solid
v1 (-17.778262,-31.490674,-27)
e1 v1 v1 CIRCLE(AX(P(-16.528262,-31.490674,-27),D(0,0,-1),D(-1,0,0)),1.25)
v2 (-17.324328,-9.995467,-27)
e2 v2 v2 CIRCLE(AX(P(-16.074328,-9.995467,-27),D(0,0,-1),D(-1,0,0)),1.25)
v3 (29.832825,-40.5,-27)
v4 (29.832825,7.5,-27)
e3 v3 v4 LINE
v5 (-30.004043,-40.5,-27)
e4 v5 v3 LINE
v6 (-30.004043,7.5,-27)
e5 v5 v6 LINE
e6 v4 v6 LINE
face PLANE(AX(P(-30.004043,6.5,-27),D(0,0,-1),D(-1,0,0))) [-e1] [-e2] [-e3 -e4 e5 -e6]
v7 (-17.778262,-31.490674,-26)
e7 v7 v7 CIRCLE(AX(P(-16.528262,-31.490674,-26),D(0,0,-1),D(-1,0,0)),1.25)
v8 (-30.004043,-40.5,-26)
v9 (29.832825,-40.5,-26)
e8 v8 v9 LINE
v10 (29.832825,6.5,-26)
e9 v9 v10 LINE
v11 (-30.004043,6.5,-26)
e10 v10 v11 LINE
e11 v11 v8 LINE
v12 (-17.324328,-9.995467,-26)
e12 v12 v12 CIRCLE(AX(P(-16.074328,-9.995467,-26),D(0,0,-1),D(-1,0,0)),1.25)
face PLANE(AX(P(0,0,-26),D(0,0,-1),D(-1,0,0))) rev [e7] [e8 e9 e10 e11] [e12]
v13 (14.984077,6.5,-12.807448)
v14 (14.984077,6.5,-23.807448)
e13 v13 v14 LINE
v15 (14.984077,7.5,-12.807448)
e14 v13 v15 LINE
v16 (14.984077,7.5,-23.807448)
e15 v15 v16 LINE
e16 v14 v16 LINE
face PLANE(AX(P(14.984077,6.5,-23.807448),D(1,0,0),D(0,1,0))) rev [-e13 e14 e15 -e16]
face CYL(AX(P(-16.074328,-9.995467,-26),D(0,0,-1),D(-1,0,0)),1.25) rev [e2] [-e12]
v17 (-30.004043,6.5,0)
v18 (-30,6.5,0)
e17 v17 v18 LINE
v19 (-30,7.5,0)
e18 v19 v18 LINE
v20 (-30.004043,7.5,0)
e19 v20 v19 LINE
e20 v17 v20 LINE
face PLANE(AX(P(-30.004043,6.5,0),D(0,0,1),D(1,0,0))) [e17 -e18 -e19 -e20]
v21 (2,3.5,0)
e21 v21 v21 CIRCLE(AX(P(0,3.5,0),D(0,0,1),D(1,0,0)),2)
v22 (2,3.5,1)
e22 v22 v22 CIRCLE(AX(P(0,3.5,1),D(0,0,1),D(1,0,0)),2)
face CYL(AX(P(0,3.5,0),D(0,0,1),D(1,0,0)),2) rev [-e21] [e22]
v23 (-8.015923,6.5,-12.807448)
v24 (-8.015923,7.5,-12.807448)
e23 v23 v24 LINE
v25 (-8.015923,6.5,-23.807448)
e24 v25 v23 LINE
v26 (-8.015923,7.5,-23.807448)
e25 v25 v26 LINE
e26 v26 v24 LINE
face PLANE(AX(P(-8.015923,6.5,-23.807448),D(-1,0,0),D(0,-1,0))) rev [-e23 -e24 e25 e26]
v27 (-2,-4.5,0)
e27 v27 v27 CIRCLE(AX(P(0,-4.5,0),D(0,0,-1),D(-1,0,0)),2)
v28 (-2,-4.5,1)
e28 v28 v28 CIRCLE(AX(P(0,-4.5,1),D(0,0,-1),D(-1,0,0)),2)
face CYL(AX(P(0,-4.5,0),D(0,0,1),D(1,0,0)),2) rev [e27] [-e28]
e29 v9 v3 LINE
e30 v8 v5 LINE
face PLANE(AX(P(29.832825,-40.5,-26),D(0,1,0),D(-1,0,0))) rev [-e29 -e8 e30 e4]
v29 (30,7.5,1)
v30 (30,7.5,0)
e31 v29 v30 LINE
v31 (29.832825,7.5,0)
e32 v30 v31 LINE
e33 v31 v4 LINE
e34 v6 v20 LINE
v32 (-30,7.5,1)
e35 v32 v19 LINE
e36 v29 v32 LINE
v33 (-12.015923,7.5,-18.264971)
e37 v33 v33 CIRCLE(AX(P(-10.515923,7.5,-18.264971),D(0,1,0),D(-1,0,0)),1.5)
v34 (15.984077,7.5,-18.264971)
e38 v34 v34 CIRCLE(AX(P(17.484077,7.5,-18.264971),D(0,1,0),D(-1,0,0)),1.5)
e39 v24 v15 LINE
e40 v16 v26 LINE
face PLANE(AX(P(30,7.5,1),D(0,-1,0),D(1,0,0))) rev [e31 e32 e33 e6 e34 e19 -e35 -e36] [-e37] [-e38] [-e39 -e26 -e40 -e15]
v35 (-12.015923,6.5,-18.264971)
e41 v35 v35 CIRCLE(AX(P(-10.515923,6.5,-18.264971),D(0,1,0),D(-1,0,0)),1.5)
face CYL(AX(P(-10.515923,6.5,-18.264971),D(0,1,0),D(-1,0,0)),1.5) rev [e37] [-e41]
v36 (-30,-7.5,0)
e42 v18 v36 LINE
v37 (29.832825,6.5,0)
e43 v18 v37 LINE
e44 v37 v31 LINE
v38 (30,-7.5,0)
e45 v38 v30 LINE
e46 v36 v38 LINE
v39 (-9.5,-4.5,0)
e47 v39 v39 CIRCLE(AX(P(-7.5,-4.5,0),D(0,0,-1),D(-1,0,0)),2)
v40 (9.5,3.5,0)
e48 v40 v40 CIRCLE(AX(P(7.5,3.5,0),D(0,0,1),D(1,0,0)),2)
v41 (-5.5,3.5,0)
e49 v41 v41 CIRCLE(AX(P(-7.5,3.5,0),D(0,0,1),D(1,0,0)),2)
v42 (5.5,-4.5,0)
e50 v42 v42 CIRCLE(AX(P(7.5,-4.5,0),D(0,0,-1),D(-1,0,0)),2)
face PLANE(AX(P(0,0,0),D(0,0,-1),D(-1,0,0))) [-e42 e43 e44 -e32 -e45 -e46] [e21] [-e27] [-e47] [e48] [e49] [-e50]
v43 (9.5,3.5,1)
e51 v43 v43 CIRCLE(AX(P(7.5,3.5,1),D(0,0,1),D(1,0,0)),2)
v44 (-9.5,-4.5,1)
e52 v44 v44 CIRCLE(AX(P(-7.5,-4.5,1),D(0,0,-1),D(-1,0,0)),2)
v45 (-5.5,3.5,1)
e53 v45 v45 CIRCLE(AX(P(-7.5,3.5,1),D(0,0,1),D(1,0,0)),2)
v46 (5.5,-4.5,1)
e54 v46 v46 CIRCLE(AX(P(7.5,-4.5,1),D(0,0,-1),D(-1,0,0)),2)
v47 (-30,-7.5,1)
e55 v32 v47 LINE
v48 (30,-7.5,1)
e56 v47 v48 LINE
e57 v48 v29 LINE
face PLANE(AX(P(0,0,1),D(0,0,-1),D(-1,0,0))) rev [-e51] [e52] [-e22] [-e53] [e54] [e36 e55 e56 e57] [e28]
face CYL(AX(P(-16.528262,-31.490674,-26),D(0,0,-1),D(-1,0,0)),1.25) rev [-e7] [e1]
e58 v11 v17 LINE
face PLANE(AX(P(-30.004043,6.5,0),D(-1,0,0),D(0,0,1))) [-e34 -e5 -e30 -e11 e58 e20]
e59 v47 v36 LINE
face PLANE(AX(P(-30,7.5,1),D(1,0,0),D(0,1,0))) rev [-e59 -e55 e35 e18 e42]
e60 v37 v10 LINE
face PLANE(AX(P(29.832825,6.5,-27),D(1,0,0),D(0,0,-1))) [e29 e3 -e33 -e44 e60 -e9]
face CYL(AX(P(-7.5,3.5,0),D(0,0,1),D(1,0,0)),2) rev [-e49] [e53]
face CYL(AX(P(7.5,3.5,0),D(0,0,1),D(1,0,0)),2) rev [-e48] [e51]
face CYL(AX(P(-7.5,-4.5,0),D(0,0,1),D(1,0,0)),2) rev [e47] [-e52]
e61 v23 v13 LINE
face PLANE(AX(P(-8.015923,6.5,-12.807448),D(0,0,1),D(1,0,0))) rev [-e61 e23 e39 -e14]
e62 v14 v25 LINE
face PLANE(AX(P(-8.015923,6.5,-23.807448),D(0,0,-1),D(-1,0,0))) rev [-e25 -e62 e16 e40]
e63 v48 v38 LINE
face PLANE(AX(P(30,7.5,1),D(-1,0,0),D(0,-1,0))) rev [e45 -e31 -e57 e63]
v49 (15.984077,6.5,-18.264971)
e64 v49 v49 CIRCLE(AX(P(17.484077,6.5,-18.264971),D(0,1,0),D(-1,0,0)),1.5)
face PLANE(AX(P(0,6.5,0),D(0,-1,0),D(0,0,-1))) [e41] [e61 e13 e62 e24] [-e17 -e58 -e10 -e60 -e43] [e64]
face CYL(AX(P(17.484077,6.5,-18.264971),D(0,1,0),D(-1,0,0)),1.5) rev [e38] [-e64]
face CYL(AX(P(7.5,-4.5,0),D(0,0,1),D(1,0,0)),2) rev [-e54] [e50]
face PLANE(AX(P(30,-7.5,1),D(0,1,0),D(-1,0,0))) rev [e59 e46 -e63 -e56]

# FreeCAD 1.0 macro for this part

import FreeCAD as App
import Part
import Sketcher

V = App.Vector
Q = App.Units.Quantity


def add_polygon(sketch, points):
    """Adds a closed chain of lines whose ends are joined by coincident constraints."""
    first, n = sketch.GeometryCount, len(points)
    for a, b in zip(points, points[1:] + points[:1]):
        sketch.addGeometry(Part.LineSegment(App.Vector(*a, 0), App.Vector(*b, 0)), False)
    for i in range(n):
        sketch.addConstraint(Sketcher.Constraint("Coincident", first + i, 2, first + (i + 1) % n, 1))

doc = App.newDocument("Part")
params = doc.addObject("Spreadsheet::Sheet", "Params")
for row, (alias, value) in enumerate([
    ("sketch1_width", "60 mm"),
    ("sketch1_height", "15 mm"),
    ("pad1_length", "1 mm"),
    ("sketch2_height", "27 mm"),
    ("pad2_length", "1 mm"),
    ("sketch3_height", "47 mm"),
    ("pad3_length", "1 mm"),
    ("sketch4_diameter", "4 mm"),
    ("pocket1_length", "1 mm"),
    ("sketch5_width", "23 mm"),
    ("sketch5_height", "11 mm"),
    ("pocket2_length", "1 mm"),
    ("sketch6_diameter", "3 mm"),
    ("pocket3_length", "1 mm"),
    ("sketch7_diameter", "2.5 mm"),
    ("pocket4_length", "1 mm"),
], start=1):
    params.set(f"A{row}", alias)
    params.set(f"B{row}", "=" + value)
    params.setAlias(f"B{row}", alias)

body = doc.addObject("PartDesign::Body", "Body")

# Sketch on XY plane
sketch1 = body.newObject("Sketcher::SketchObject", "Sketch")
sketch1.AttachmentSupport = (doc.getObject("XY_Plane"), [""])
sketch1.MapMode = "FlatFace"
add_polygon(sketch1, [(-30, 8), (-30, -8), (30, -8), (30, 8)])  # lines 0-3
sketch1.addConstraint(Sketcher.Constraint("Vertical", 0))
sketch1.addConstraint(Sketcher.Constraint("Horizontal", 1))
sketch1.addConstraint(Sketcher.Constraint("Vertical", 2))
sketch1.addConstraint(Sketcher.Constraint("Horizontal", 3))
sketch1.addConstraint(Sketcher.Constraint("Symmetric", 0, 2, 2, 2, -1, 1))
sketch1.addConstraint(Sketcher.Constraint("DistanceX", 1, 1, 1, 2, Q("60 mm")))
sketch1.addConstraint(Sketcher.Constraint("DistanceY", 0, 2, 0, 1, Q("15 mm")))
sketch1.setExpression("Constraints[9]", "Params.sketch1_width")
sketch1.setExpression("Constraints[10]", "Params.sketch1_height")
pad1 = body.newObject("PartDesign::Pad", "Pad")
pad1.Profile = sketch1
pad1.setExpression("Length", "Params.pad1_length")

# Sketch on XZ plane
sketch2 = body.newObject("Sketcher::SketchObject", "Sketch001")
sketch2.AttachmentSupport = (doc.getObject("XZ_Plane"), [""])
sketch2.MapMode = "FlatFace"
sketch2.AttachmentOffset = App.Placement(V(0, 0, -7.5), App.Rotation())
add_polygon(sketch2, [(-30, -27), (-30, 0), (30, 0), (30, -27)])  # lines 0-3
sketch2.addConstraint(Sketcher.Constraint("Vertical", 0))
sketch2.addConstraint(Sketcher.Constraint("Horizontal", 1))
sketch2.addConstraint(Sketcher.Constraint("Vertical", 2))
sketch2.addConstraint(Sketcher.Constraint("Horizontal", 3))
sketch2.addConstraint(Sketcher.Constraint("PointOnObject", 0, 2, -1))
sketch2.addConstraint(Sketcher.Constraint("DistanceY", 0, 1, 0, 2, Q("27 mm")))
sketch2.addConstraint(Sketcher.Constraint("DistanceX", 1, 1, 1, 2, Q("59.836868 mm")))
sketch2.addConstraint(Sketcher.Constraint("DistanceX", 0, 2, -1, 1, Q("30.004043 mm")))
sketch2.setExpression("Constraints[9]", "Params.sketch2_height")
pad2 = body.newObject("PartDesign::Pad", "Pad001")
pad2.Profile = sketch2
pad2.setExpression("Length", "Params.pad2_length")

# Sketch on XY plane
sketch3 = body.newObject("Sketcher::SketchObject", "Sketch002")
sketch3.AttachmentSupport = (doc.getObject("XY_Plane"), [""])
sketch3.MapMode = "FlatFace"
sketch3.AttachmentOffset = App.Placement(V(0, 0, -27), App.Rotation())
add_polygon(sketch3, [(-30, 6), (-30, -40), (30, -40), (30, 6)])  # lines 0-3
sketch3.addConstraint(Sketcher.Constraint("Vertical", 0))
sketch3.addConstraint(Sketcher.Constraint("Horizontal", 1))
sketch3.addConstraint(Sketcher.Constraint("Vertical", 2))
sketch3.addConstraint(Sketcher.Constraint("Horizontal", 3))
sketch3.addConstraint(Sketcher.Constraint("DistanceY", 0, 2, 0, 1, Q("47 mm")))
sketch3.addConstraint(Sketcher.Constraint("DistanceY", 0, 2, -1, 1, Q("40.5 mm")))
sketch3.addConstraint(Sketcher.Constraint("DistanceX", 1, 1, 1, 2, Q("59.836868 mm")))
sketch3.addConstraint(Sketcher.Constraint("DistanceX", 0, 2, -1, 1, Q("30.004043 mm")))
sketch3.setExpression("Constraints[8]", "Params.sketch3_height")
pad3 = body.newObject("PartDesign::Pad", "Pad002")
pad3.Profile = sketch3
pad3.setExpression("Length", "Params.pad3_length")

# Sketch on XY plane
sketch4 = body.newObject("Sketcher::SketchObject", "Sketch003")
sketch4.AttachmentSupport = (doc.getObject("XY_Plane"), [""])
sketch4.MapMode = "FlatFace"
sketch4.AttachmentOffset = App.Placement(V(0, 0, 1), App.Rotation())
sketch4.addGeometry(Part.Circle(V(-7.5, 3.5, 0), V(0, 0, 1), 2), False)
sketch4.addGeometry(Part.Circle(V(0, 3.5, 0), V(0, 0, 1), 2), False)
sketch4.addGeometry(Part.Circle(V(7.5, 3.5, 0), V(0, 0, 1), 2), False)
sketch4.addGeometry(Part.Circle(V(7.5, -4.5, 0), V(0, 0, 1), 2), False)
sketch4.addGeometry(Part.Circle(V(0, -4.5, 0), V(0, 0, 1), 2), False)
sketch4.addGeometry(Part.Circle(V(-7.5, -4.5, 0), V(0, 0, 1), 2), False)
sketch4.addConstraint(Sketcher.Constraint("Equal", 0, 1))
sketch4.addConstraint(Sketcher.Constraint("Equal", 1, 2))
sketch4.addConstraint(Sketcher.Constraint("Equal", 2, 3))
sketch4.addConstraint(Sketcher.Constraint("Equal", 3, 4))
sketch4.addConstraint(Sketcher.Constraint("Equal", 4, 5))
sketch4.addConstraint(Sketcher.Constraint("Symmetric", 0, 3, 2, 3, -2))
sketch4.addConstraint(Sketcher.Constraint("Symmetric", 3, 3, 5, 3, -2))
sketch4.addConstraint(Sketcher.Constraint("PointOnObject", 1, 3, -2))
sketch4.addConstraint(Sketcher.Constraint("PointOnObject", 4, 3, -2))
sketch4.addConstraint(Sketcher.Constraint("Horizontal", 0, 3, 1, 3))
sketch4.addConstraint(Sketcher.Constraint("Horizontal", 3, 3, 4, 3))
sketch4.addConstraint(Sketcher.Constraint("Vertical", 2, 3, 3, 3))
sketch4.addConstraint(Sketcher.Constraint("Diameter", 0, Q("4 mm")))
sketch4.addConstraint(Sketcher.Constraint("DistanceX", 0, 3, 2, 3, Q("15 mm")))
sketch4.addConstraint(Sketcher.Constraint("DistanceY", 3, 3, 2, 3, Q("8 mm")))
sketch4.addConstraint(Sketcher.Constraint("DistanceY", -1, 1, 0, 3, Q("3.5 mm")))
sketch4.setExpression("Constraints[12]", "Params.sketch4_diameter")
pocket1 = body.newObject("PartDesign::Pocket", "Pocket")
pocket1.Profile = sketch4
pocket1.setExpression("Length", "Params.pocket1_length")

# Sketch on XZ plane
sketch5 = body.newObject("Sketcher::SketchObject", "Sketch004")
sketch5.AttachmentSupport = (doc.getObject("XZ_Plane"), [""])
sketch5.MapMode = "FlatFace"
sketch5.AttachmentOffset = App.Placement(V(0, 0, -7.5), App.Rotation())
add_polygon(sketch5, [(-8, -24), (-8, -13), (15, -13), (15, -24)])  # lines 0-3
sketch5.addConstraint(Sketcher.Constraint("Vertical", 0))
sketch5.addConstraint(Sketcher.Constraint("Horizontal", 1))
sketch5.addConstraint(Sketcher.Constraint("Vertical", 2))
sketch5.addConstraint(Sketcher.Constraint("Horizontal", 3))
sketch5.addConstraint(Sketcher.Constraint("DistanceX", 1, 1, 1, 2, Q("23 mm")))
sketch5.addConstraint(Sketcher.Constraint("DistanceY", 0, 1, 0, 2, Q("11 mm")))
sketch5.addConstraint(Sketcher.Constraint("DistanceX", 0, 2, -1, 1, Q("8.015923 mm")))
sketch5.addConstraint(Sketcher.Constraint("DistanceY", 0, 2, -1, 1, Q("12.807448 mm")))
sketch5.setExpression("Constraints[8]", "Params.sketch5_width")
sketch5.setExpression("Constraints[9]", "Params.sketch5_height")
pocket2 = body.newObject("PartDesign::Pocket", "Pocket001")
pocket2.Profile = sketch5
pocket2.setExpression("Length", "Params.pocket2_length")
pocket2.Reversed = True

# Sketch on XZ plane
sketch6 = body.newObject("Sketcher::SketchObject", "Sketch005")
sketch6.AttachmentSupport = (doc.getObject("XZ_Plane"), [""])
sketch6.MapMode = "FlatFace"
sketch6.AttachmentOffset = App.Placement(V(0, 0, -7.5), App.Rotation())
sketch6.addGeometry(Part.Circle(V(17.5, -18.3, 0), V(0, 0, 1), 1.5), False)
sketch6.addGeometry(Part.Circle(V(-10.5, -18.3, 0), V(0, 0, 1), 1.5), False)
sketch6.addConstraint(Sketcher.Constraint("Equal", 0, 1))
sketch6.addConstraint(Sketcher.Constraint("Horizontal", 0, 3, 1, 3))
sketch6.addConstraint(Sketcher.Constraint("Diameter", 0, Q("3 mm")))
sketch6.addConstraint(Sketcher.Constraint("DistanceX", 1, 3, 0, 3, Q("28 mm")))
sketch6.addConstraint(Sketcher.Constraint("DistanceY", 0, 3, -1, 1, Q("18.264971 mm")))
sketch6.addConstraint(Sketcher.Constraint("DistanceX", -1, 1, 0, 3, Q("17.484077 mm")))
sketch6.setExpression("Constraints[2]", "Params.sketch6_diameter")
pocket3 = body.newObject("PartDesign::Pocket", "Pocket002")
pocket3.Profile = sketch6
pocket3.setExpression("Length", "Params.pocket3_length")
pocket3.Reversed = True

# Sketch on XY plane
sketch7 = body.newObject("Sketcher::SketchObject", "Sketch006")
sketch7.AttachmentSupport = (doc.getObject("XY_Plane"), [""])
sketch7.MapMode = "FlatFace"
sketch7.AttachmentOffset = App.Placement(V(0, 0, -27), App.Rotation())
sketch7.addGeometry(Part.Circle(V(-16.5, -31.5, 0), V(0, 0, 1), 1.2), False)
sketch7.addGeometry(Part.Circle(V(-16.1, -10, 0), V(0, 0, 1), 1.2), False)
sketch7.addConstraint(Sketcher.Constraint("Equal", 0, 1))
sketch7.addConstraint(Sketcher.Constraint("Diameter", 0, Q("2.5 mm")))
sketch7.addConstraint(Sketcher.Constraint("DistanceX", 0, 3, -1, 1, Q("16.528262 mm")))
sketch7.addConstraint(Sketcher.Constraint("DistanceY", 0, 3, -1, 1, Q("31.490674 mm")))
sketch7.addConstraint(Sketcher.Constraint("DistanceX", 1, 3, -1, 1, Q("16.074328 mm")))
sketch7.addConstraint(Sketcher.Constraint("DistanceY", 1, 3, -1, 1, Q("9.995467 mm")))
sketch7.setExpression("Constraints[1]", "Params.sketch7_diameter")
pocket4 = body.newObject("PartDesign::Pocket", "Pocket003")
pocket4.Profile = sketch7
pocket4.setExpression("Length", "Params.pocket4_length")
pocket4.Reversed = True

doc.recompute()
